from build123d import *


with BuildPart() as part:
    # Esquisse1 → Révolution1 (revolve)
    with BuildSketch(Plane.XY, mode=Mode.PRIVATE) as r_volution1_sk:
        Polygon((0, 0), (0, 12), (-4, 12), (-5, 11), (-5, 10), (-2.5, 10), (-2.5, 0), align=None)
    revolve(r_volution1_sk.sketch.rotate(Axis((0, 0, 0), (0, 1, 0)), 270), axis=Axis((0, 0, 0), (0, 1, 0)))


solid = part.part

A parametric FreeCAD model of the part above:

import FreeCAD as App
import Part
import Sketcher
Q = App.Units.Quantity


def add_polygon(sketch, points):
    """Adds a closed chain of lines whose ends are joined by coincident constraints."""
    first, n = sketch.GeometryCount, len(points)
    for a, b in zip(points, points[1:] + points[:1]):
        sketch.addGeometry(Part.LineSegment(App.Vector(*a, 0), App.Vector(*b, 0)), False)
    for i in range(n):
        sketch.addConstraint(Sketcher.Constraint("Coincident", first + i, 2, first + (i + 1) % n, 1))

doc = App.newDocument("Part")
body = doc.addObject("PartDesign::Body", "Body")

# Sketch on XY plane
sketch1 = doc.addObject("Sketcher::SketchObject", "Sketch")
body.addObject(sketch1)
sketch1.AttachmentSupport = (doc.XY_Plane, [""])
sketch1.MapMode = "FlatFace"
add_polygon(sketch1, [(0, 0), (0, 12), (-4, 12), (-5, 11), (-5, 10), (-2.5, 10), (-2.5, 0)])  # lines 0-6
sketch1.addConstraint(Sketcher.Constraint("Vertical", 0))
sketch1.addConstraint(Sketcher.Constraint("Horizontal", 1))
sketch1.addConstraint(Sketcher.Constraint("Vertical", 3))
sketch1.addConstraint(Sketcher.Constraint("Horizontal", 4))
sketch1.addConstraint(Sketcher.Constraint("Vertical", 5))
sketch1.addConstraint(Sketcher.Constraint("Horizontal", 6))
sketch1.addConstraint(Sketcher.Constraint("Coincident", 6, 2, -1, 1))
sketch1.addConstraint(Sketcher.Constraint("Equal", 4, 6))
sketch1.addConstraint(Sketcher.Constraint("DistanceX", 1, 2, 1, 1, 4.0))
sketch1.addConstraint(Sketcher.Constraint("DistanceY", 0, 1, 0, 2, 12.0))
sketch1.addConstraint(Sketcher.Constraint("DistanceY", 3, 2, 3, 1, 1.0))
sketch1.addConstraint(Sketcher.Constraint("DistanceY", 5, 2, 5, 1, 10.0))
sketch1.addConstraint(Sketcher.Constraint("Angle", 2, Q("-135 deg")))
revolution = doc.addObject("PartDesign::Revolution", "Revolution")
body.addObject(revolution)
revolution.Profile = sketch1
revolution.ReferenceAxis = (sketch1, ["V_Axis"])
revolution.Angle = 360

doc.recompute()
